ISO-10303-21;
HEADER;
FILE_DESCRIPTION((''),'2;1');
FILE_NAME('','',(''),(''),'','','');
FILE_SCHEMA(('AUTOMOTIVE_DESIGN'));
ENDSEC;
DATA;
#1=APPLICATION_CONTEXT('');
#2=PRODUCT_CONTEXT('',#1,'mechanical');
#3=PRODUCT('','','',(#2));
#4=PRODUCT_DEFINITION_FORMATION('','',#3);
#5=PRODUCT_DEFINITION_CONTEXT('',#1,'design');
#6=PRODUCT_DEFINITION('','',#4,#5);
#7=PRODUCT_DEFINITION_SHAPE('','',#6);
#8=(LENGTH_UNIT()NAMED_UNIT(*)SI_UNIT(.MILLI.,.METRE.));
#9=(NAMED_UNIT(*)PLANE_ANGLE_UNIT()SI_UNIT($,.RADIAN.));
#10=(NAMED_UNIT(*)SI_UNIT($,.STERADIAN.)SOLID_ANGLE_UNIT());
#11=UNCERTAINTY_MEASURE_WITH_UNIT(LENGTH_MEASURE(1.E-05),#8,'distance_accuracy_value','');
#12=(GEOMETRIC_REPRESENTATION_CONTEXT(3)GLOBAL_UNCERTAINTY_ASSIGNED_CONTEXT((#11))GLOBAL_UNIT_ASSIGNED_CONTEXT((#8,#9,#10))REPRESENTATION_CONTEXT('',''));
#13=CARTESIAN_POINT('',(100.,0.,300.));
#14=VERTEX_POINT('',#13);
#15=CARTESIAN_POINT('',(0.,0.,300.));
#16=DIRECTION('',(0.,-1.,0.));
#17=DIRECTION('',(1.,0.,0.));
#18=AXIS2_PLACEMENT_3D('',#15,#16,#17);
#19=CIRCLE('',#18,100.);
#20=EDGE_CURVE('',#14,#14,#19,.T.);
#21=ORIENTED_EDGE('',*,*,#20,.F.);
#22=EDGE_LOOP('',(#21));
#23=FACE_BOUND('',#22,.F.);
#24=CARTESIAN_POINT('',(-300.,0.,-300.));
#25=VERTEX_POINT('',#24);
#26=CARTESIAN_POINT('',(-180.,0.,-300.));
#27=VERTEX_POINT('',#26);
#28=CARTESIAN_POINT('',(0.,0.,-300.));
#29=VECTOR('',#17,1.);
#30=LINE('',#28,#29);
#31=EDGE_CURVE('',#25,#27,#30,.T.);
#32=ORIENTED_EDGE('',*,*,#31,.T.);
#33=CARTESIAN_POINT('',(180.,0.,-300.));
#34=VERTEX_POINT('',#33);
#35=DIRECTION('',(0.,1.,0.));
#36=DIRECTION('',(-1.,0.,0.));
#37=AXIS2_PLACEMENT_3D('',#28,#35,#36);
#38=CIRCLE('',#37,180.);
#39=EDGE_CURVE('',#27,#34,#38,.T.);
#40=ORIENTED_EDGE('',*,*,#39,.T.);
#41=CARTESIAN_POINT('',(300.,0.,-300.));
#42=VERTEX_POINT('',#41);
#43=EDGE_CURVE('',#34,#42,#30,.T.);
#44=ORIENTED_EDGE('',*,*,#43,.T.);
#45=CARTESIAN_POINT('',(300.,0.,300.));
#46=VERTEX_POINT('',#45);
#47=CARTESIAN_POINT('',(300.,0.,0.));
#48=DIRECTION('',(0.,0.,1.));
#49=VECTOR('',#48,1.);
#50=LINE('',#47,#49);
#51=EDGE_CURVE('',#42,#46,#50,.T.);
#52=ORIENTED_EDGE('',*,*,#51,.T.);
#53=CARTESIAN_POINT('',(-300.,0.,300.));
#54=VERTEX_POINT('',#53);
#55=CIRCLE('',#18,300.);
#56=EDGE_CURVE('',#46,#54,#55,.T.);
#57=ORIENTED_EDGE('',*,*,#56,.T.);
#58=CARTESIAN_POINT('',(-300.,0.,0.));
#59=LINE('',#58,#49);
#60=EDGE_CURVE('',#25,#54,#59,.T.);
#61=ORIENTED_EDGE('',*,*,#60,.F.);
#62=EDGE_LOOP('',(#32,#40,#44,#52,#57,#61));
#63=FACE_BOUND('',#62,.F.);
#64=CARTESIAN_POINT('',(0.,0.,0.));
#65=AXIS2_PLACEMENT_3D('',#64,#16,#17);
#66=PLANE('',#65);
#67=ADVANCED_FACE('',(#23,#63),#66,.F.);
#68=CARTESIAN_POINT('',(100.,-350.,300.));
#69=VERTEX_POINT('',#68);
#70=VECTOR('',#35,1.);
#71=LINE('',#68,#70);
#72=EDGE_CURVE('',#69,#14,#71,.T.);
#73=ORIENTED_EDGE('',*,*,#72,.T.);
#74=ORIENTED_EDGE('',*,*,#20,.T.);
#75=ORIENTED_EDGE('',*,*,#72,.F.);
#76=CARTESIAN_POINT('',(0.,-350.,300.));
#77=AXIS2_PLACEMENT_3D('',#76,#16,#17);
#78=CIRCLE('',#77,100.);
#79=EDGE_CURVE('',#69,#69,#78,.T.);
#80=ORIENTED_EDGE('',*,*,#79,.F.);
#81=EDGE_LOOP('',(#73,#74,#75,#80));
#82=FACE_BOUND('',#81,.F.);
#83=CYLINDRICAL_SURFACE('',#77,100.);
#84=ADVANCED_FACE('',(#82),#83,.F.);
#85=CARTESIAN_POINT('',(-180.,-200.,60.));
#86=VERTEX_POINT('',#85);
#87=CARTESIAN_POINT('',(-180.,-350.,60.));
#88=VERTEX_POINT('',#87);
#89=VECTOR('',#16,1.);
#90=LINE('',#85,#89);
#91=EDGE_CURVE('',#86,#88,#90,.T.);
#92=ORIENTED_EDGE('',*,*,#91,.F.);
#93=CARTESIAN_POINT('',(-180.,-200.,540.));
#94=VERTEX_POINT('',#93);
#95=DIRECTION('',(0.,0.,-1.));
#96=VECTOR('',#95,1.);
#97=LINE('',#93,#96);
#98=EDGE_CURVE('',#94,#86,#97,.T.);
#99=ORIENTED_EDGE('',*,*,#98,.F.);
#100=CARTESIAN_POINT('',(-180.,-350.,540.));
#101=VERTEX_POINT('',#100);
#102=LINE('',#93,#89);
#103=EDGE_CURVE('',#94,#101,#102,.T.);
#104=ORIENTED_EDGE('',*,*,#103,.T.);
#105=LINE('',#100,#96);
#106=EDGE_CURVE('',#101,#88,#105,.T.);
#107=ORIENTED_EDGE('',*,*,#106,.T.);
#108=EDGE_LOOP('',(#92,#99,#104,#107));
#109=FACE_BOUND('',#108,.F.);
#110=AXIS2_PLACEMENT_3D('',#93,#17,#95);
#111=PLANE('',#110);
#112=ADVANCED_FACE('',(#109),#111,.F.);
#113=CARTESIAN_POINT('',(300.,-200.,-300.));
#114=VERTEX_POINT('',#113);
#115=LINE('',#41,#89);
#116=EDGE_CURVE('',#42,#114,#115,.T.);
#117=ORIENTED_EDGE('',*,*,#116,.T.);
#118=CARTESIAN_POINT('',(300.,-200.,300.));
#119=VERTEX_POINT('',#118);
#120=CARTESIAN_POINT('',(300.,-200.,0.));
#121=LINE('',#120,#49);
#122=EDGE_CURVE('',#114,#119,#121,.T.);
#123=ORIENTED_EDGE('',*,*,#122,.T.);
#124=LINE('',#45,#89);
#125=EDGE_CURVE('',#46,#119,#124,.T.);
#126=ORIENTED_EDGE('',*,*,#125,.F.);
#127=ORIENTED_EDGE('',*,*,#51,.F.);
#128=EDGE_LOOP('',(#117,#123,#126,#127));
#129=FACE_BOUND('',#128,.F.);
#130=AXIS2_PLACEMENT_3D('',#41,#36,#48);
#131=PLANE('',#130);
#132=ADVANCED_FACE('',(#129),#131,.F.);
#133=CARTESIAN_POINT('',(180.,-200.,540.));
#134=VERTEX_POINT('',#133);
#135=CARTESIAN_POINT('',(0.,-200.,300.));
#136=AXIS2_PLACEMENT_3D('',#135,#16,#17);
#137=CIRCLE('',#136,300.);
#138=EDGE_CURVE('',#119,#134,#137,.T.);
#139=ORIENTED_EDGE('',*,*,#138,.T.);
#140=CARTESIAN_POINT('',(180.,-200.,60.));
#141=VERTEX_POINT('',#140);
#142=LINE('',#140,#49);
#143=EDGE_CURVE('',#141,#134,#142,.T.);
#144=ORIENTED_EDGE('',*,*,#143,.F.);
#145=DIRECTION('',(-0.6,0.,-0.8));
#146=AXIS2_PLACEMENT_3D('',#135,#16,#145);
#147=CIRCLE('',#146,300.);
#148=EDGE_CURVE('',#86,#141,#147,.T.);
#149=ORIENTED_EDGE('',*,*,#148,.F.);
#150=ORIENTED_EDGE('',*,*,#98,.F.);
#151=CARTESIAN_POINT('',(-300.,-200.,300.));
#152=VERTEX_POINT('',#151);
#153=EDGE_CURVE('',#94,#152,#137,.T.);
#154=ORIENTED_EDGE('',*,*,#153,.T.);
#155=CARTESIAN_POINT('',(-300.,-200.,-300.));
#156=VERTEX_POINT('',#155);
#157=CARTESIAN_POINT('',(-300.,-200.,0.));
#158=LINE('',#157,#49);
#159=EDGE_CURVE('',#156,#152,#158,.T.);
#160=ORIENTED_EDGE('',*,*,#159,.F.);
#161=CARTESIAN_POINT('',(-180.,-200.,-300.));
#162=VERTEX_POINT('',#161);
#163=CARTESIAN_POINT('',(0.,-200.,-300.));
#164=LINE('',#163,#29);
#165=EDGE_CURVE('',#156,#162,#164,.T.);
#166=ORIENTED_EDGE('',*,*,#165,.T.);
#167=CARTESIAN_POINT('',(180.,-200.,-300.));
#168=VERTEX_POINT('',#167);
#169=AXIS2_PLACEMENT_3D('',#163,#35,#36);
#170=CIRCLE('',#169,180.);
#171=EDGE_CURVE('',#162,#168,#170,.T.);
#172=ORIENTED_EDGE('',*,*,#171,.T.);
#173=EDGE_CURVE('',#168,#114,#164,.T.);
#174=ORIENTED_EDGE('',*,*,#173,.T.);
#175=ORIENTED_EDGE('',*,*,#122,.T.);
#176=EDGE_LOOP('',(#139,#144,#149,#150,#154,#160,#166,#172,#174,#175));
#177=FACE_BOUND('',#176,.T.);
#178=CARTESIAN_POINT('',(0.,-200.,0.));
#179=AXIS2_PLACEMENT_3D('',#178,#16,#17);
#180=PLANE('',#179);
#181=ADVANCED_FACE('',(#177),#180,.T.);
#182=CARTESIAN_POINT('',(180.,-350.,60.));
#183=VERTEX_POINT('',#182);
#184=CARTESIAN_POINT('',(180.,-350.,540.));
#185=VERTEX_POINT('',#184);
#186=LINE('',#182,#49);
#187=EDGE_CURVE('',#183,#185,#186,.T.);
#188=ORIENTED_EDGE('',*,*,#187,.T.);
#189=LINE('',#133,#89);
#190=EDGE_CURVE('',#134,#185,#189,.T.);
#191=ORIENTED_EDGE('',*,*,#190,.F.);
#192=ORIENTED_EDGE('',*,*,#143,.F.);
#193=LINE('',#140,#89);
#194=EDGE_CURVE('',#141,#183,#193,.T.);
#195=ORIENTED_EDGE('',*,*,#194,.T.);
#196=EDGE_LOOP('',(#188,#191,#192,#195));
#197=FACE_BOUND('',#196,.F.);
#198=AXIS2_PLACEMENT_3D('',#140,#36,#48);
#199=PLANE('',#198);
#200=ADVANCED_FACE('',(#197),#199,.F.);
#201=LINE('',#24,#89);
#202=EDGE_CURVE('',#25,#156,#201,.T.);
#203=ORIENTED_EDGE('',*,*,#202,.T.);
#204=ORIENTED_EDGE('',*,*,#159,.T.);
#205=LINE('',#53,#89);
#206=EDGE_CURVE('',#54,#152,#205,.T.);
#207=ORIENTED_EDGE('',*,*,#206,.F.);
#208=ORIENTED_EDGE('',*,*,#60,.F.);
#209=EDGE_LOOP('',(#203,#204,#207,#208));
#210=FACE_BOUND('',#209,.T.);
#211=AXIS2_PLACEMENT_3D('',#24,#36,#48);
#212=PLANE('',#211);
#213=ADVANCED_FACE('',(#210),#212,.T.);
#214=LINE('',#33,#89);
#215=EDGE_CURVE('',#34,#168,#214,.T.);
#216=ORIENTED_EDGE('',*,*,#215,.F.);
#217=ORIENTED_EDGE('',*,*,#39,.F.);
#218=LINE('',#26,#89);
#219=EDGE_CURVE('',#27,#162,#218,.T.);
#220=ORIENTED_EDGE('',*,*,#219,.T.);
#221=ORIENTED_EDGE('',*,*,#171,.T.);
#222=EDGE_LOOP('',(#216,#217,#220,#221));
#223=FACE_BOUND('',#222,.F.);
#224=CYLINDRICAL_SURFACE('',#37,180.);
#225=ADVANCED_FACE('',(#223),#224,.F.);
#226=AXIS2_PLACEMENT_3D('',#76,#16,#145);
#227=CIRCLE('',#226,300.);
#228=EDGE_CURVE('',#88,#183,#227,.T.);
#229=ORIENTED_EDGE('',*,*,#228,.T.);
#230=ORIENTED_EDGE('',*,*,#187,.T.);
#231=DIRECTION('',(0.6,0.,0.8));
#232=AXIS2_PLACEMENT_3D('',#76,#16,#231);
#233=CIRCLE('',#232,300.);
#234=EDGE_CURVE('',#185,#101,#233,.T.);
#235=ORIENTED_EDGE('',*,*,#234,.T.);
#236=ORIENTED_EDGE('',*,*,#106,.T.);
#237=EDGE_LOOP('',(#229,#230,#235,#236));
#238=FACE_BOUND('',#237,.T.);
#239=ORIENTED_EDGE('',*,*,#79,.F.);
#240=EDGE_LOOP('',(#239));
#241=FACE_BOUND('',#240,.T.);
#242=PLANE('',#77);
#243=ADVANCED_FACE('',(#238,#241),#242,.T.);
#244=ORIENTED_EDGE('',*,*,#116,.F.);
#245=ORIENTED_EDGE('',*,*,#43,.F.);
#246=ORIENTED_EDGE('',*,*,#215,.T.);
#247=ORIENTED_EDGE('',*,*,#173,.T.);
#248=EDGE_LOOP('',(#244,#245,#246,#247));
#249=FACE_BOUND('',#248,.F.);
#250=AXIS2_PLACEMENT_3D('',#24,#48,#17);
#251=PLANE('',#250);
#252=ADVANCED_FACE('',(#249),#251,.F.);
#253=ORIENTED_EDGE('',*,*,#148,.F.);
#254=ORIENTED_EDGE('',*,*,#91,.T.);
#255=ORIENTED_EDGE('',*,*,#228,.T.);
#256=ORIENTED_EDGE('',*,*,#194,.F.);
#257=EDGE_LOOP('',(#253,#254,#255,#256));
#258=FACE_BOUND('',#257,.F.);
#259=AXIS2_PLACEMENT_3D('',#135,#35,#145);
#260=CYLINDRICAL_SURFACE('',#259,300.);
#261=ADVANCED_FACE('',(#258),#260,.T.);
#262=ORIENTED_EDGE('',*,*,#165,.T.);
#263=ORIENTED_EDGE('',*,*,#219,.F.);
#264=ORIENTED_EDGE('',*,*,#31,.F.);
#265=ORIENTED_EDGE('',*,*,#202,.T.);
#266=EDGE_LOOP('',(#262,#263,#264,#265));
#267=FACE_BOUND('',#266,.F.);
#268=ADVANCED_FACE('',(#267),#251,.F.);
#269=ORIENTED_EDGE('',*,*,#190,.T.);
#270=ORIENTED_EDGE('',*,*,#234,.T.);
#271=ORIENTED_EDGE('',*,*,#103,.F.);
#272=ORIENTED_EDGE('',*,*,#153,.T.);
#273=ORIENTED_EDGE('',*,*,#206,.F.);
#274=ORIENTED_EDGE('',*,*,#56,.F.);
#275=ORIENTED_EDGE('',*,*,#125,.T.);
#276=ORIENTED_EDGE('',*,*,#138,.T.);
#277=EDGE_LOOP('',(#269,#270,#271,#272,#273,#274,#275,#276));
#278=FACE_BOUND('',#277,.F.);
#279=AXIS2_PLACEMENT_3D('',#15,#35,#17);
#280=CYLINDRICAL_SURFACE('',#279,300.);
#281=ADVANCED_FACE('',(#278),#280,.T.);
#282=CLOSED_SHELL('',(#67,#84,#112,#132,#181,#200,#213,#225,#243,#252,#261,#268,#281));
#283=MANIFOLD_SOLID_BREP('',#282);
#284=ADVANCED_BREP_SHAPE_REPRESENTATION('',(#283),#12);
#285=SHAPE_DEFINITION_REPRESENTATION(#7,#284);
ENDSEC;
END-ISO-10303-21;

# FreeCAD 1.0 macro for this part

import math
import FreeCAD as App
import Part
import Sketcher

V = App.Vector
Q = App.Units.Quantity

doc = App.newDocument("Part")
params = doc.addObject("Spreadsheet::Sheet", "Params")
for row, (alias, value) in enumerate([
    ("sketch1_radius", "300 mm"),
    ("pad1_length", "200 mm"),
    ("sketch2_radius", "180 mm"),
    ("sketch3_radius", "300 mm"),
    ("sketch3_height", "480 mm"),
    ("pad2_length", "150 mm"),
    ("sketch4_diameter", "200 mm"),
], start=1):
    params.set(f"A{row}", alias)
    params.set(f"B{row}", "=" + value)
    params.setAlias(f"B{row}", alias)

body = doc.addObject("PartDesign::Body", "Body")

# Sketch on XZ plane
sketch1 = body.newObject("Sketcher::SketchObject", "Sketch")
sketch1.AttachmentSupport = (doc.getObject("XZ_Plane"), [""])
sketch1.MapMode = "FlatFace"
sketch1.addGeometry([
    Part.LineSegment(V(-300, 300, 0), V(-300, -300, 0)),
    Part.LineSegment(V(-300, -300, 0), V(300, -300, 0)),
    Part.LineSegment(V(300, -300, 0), V(300, 300, 0)),
    Part.ArcOfCircle(Part.Circle(V(0, 300, 0), V(0, 0, 1), 300), math.radians(0), math.radians(180)),
], False)
sketch1.addConstraint([
    Sketcher.Constraint("Coincident", 0, 2, 1, 1),
    Sketcher.Constraint("Coincident", 1, 2, 2, 1),
    Sketcher.Constraint("Tangent", 2, 2, 3, 1),
    Sketcher.Constraint("Tangent", 3, 2, 0, 1),
    Sketcher.Constraint("Vertical", 0),
    Sketcher.Constraint("Horizontal", 1),
    Sketcher.Constraint("Vertical", 2),
    Sketcher.Constraint("Symmetric", 0, 2, 2, 2, -1, 1),
    Sketcher.Constraint("Equal", 1, 0),
    Sketcher.Constraint("Radius", 3, Q("300 mm")),
])
sketch1.setExpression("Constraints[9]", "Params.sketch1_radius")
pad1 = body.newObject("PartDesign::Pad", "Pad")
pad1.Profile = sketch1
pad1.setExpression("Length", "Params.pad1_length")

# Sketch on XZ plane
sketch2 = body.newObject("Sketcher::SketchObject", "Sketch001")
sketch2.AttachmentSupport = (doc.getObject("XZ_Plane"), [""])
sketch2.MapMode = "FlatFace"
sketch2.addGeometry([
    Part.LineSegment(V(180, -300, 0), V(-180, -300, 0)),
    Part.ArcOfCircle(Part.Circle(V(0, -300, 0), V(0, 0, 1), 180), math.radians(0), math.radians(180)),
], False)
sketch2.addConstraint([
    Sketcher.Constraint("Coincident", 0, 1, 1, 1),
    Sketcher.Constraint("Coincident", 1, 2, 0, 2),
    Sketcher.Constraint("Horizontal", 0),
    Sketcher.Constraint("PointOnObject", 1, 3, -2),
    Sketcher.Constraint("Horizontal", 1, 3, 0, 1),
    Sketcher.Constraint("Radius", 1, Q("180 mm")),
    Sketcher.Constraint("DistanceY", 1, 3, -1, 1, Q("300 mm")),
])
sketch2.setExpression("Constraints[5]", "Params.sketch2_radius")
pocket1 = body.newObject("PartDesign::Pocket", "Pocket")
pocket1.Profile = sketch2
pocket1.Type = "ThroughAll"
pocket1.Reversed = True

# Sketch on XZ plane
sketch3 = body.newObject("Sketcher::SketchObject", "Sketch002")
sketch3.AttachmentSupport = (doc.getObject("XZ_Plane"), [""])
sketch3.MapMode = "FlatFace"
sketch3.AttachmentOffset = App.Placement(V(0, 0, 200), App.Rotation())
sketch3.addGeometry([
    Part.LineSegment(V(180, 60, 0), V(180, 540, 0)),
    Part.ArcOfCircle(Part.Circle(V(0, 300, 0), V(0, 0, 1), 300), math.radians(53), math.radians(127)),
    Part.LineSegment(V(-180, 540, 0), V(-180, 60, 0)),
    Part.ArcOfCircle(Part.Circle(V(0, 300, 0), V(0, 0, 1), 300), math.radians(-127), math.radians(-53)),
], False)
sketch3.addConstraint([
    Sketcher.Constraint("Coincident", 0, 2, 1, 1),
    Sketcher.Constraint("Coincident", 1, 2, 2, 1),
    Sketcher.Constraint("Coincident", 2, 2, 3, 1),
    Sketcher.Constraint("Coincident", 3, 2, 0, 1),
    Sketcher.Constraint("Vertical", 0),
    Sketcher.Constraint("Vertical", 2),
    Sketcher.Constraint("Coincident", 3, 3, 1, 3),
    Sketcher.Constraint("Equal", 1, 3),
    Sketcher.Constraint("Symmetric", 0, 2, 1, 2, -2),
    Sketcher.Constraint("Radius", 1, Q("300 mm")),
    Sketcher.Constraint("DistanceY", 0, 1, 0, 2, Q("480 mm")),
    Sketcher.Constraint("DistanceY", -1, 1, 1, 3, Q("300 mm")),
])
sketch3.setExpression("Constraints[9]", "Params.sketch3_radius")
sketch3.setExpression("Constraints[10]", "Params.sketch3_height")
pad2 = body.newObject("PartDesign::Pad", "Pad001")
pad2.Profile = sketch3
pad2.setExpression("Length", "Params.pad2_length")

# Sketch on XZ plane
sketch4 = body.newObject("Sketcher::SketchObject", "Sketch003")
sketch4.AttachmentSupport = (doc.getObject("XZ_Plane"), [""])
sketch4.MapMode = "FlatFace"
sketch4.AttachmentOffset = App.Placement(V(0, 0, 350), App.Rotation())
sketch4.addGeometry(Part.Circle(V(0, 300, 0), V(0, 0, 1), 100), False)
sketch4.addConstraint([
    Sketcher.Constraint("PointOnObject", 0, 3, -2),
    Sketcher.Constraint("Diameter", 0, Q("200 mm")),
    Sketcher.Constraint("DistanceY", -1, 1, 0, 3, Q("300 mm")),
])
sketch4.setExpression("Constraints[1]", "Params.sketch4_diameter")
pocket2 = body.newObject("PartDesign::Pocket", "Pocket001")
pocket2.Profile = sketch4
pocket2.Type = "ThroughAll"

doc.recompute()
